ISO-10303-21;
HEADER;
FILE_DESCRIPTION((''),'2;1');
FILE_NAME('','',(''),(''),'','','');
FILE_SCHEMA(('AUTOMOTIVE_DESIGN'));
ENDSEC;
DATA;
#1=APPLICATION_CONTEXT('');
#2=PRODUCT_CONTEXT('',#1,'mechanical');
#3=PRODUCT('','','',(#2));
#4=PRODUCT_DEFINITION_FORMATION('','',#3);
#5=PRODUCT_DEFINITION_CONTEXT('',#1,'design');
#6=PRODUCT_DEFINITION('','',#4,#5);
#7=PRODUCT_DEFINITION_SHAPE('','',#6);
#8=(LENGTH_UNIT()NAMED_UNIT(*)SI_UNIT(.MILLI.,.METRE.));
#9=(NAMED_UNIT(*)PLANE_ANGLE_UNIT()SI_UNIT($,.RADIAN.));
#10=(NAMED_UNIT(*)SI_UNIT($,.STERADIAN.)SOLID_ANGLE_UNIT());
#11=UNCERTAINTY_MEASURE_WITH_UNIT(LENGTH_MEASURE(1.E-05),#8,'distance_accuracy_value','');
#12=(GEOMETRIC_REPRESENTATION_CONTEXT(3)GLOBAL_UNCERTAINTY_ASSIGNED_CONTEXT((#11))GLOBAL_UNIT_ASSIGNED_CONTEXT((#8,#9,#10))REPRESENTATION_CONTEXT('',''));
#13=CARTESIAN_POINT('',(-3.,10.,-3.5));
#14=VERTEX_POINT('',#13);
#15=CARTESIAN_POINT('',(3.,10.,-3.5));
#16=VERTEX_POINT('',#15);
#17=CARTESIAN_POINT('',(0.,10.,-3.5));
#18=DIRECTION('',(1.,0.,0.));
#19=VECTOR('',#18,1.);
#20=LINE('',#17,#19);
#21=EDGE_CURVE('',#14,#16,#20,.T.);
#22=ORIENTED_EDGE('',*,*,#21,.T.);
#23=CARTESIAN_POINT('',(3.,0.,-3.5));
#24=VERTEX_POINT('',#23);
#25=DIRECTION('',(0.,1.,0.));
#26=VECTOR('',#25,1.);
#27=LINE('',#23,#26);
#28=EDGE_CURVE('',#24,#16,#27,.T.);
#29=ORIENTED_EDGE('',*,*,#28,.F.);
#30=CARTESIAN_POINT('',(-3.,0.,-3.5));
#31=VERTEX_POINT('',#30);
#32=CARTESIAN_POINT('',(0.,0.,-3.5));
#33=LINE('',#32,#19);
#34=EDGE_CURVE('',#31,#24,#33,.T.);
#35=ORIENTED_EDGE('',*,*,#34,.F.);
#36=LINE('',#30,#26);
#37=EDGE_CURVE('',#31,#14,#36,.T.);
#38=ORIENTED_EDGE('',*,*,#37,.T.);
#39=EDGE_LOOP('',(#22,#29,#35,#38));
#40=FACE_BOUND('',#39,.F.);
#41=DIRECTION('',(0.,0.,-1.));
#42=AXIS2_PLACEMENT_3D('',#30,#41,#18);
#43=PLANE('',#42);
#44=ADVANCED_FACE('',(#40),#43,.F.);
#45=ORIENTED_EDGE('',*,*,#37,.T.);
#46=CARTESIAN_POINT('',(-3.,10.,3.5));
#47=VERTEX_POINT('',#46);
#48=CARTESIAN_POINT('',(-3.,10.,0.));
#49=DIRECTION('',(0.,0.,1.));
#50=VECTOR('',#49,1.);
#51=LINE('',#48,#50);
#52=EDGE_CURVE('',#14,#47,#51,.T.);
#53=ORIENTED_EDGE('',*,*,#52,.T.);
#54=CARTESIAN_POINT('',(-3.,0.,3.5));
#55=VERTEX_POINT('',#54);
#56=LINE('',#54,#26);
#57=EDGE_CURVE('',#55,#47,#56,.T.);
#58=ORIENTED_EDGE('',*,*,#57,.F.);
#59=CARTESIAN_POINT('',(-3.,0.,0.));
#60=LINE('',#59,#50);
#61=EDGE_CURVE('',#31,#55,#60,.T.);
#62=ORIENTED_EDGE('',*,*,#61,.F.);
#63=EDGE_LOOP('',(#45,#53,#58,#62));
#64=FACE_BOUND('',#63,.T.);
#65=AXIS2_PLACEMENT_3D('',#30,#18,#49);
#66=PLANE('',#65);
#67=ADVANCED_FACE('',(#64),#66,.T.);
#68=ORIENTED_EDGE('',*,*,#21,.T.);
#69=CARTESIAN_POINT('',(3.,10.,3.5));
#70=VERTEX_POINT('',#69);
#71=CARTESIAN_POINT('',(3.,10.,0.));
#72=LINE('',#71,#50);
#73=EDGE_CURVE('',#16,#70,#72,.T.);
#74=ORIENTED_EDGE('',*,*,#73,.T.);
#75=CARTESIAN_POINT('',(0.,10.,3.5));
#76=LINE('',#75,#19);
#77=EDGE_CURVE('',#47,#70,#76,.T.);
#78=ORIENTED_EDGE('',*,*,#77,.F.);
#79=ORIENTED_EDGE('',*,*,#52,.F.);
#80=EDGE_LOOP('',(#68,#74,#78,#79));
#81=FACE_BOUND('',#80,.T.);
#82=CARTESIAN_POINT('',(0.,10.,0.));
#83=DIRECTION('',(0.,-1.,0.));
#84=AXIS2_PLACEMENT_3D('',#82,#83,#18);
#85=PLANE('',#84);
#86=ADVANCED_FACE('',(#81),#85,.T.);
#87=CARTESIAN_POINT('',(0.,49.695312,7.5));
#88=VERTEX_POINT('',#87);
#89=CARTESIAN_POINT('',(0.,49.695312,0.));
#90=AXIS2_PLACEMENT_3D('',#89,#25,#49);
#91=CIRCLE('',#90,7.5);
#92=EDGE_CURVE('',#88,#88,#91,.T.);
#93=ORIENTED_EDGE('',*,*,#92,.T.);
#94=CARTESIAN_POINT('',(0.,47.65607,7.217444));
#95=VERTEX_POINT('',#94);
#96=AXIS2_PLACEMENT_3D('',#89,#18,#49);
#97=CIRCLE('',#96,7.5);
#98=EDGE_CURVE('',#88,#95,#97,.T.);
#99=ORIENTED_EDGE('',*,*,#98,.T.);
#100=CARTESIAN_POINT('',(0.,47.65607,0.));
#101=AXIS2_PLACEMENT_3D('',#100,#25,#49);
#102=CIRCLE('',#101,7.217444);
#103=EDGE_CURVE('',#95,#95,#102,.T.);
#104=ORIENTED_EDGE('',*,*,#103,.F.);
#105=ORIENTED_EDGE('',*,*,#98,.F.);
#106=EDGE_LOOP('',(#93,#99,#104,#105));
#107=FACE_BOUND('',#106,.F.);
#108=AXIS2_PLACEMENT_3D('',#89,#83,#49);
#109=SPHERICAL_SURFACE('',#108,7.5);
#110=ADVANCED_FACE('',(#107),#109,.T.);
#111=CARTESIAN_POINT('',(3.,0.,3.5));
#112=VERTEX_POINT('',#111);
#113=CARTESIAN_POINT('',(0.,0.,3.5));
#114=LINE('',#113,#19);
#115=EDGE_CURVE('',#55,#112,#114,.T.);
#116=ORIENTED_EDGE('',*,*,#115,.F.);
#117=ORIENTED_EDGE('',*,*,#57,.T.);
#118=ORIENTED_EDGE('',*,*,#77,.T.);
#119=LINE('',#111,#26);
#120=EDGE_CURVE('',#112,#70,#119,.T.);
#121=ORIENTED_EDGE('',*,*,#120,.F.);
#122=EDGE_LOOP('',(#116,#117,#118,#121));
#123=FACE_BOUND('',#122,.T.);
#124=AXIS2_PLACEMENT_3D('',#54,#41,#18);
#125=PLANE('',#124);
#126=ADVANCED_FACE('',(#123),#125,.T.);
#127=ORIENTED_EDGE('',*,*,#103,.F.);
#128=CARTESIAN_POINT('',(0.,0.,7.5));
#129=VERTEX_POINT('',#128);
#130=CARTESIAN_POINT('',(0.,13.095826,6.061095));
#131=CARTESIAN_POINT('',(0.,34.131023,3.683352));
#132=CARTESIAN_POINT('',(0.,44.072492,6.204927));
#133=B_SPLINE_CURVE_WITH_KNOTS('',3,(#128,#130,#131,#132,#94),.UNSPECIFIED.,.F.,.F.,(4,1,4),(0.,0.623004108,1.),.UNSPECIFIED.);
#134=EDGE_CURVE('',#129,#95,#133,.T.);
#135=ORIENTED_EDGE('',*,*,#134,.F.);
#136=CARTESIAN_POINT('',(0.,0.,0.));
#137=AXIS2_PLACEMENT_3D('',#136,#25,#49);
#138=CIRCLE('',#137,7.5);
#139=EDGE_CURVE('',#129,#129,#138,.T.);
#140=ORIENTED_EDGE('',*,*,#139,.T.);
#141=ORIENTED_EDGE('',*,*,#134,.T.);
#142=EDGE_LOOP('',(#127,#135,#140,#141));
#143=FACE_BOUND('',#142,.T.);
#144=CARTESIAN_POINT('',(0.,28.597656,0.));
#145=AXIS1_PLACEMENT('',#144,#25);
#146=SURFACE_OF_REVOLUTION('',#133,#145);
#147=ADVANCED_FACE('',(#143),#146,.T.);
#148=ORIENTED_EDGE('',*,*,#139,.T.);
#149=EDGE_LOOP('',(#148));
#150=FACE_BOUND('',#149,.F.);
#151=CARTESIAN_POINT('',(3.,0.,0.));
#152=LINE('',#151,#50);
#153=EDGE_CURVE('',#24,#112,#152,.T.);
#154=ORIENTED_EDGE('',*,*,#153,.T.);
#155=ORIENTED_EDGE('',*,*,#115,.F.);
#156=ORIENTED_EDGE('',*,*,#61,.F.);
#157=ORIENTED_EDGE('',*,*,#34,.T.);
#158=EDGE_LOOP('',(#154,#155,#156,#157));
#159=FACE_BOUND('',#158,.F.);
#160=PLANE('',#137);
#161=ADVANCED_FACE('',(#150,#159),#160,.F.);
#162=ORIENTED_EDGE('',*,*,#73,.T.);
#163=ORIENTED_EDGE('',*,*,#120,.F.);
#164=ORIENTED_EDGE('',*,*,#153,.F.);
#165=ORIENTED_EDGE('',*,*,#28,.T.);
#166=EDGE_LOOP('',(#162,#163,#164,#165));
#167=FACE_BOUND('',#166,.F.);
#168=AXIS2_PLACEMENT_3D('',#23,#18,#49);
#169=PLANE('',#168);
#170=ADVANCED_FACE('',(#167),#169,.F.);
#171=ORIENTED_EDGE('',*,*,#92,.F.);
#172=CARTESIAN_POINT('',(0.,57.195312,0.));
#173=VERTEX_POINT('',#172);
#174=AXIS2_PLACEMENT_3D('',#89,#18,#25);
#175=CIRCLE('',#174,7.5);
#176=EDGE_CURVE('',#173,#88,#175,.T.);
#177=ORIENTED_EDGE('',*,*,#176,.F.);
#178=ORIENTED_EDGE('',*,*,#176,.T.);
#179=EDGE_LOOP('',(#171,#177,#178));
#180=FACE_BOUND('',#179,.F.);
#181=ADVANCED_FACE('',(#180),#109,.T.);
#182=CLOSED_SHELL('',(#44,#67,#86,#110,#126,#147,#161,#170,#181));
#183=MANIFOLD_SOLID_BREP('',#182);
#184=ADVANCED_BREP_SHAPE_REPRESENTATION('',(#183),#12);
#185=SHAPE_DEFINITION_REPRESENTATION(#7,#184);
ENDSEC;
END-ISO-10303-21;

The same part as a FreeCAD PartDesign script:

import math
import FreeCAD as App
import Part
import Sketcher

V = App.Vector
Q = App.Units.Quantity


def add_polygon(sketch, points):
    """Adds a closed chain of lines whose ends are joined by coincident constraints."""
    first, n = sketch.GeometryCount, len(points)
    for a, b in zip(points, points[1:] + points[:1]):
        sketch.addGeometry(Part.LineSegment(App.Vector(*a, 0), App.Vector(*b, 0)), False)
    for i in range(n):
        sketch.addConstraint(Sketcher.Constraint("Coincident", first + i, 2, first + (i + 1) % n, 1))

doc = App.newDocument("Part")
body = doc.addObject("PartDesign::Body", "Body")

# Sketch on YZ plane
sketch1 = body.newObject("Sketcher::SketchObject", "Sketch")
sketch1.AttachmentSupport = (doc.getObject("YZ_Plane"), [""])
sketch1.MapMode = "FlatFace"
sketch1.addGeometry([
    Part.LineSegment(V(0, 7.5, 0), V(0, 0, 0)),  # 0
    Part.LineSegment(V(0, 0, 0), V(57.195312, 0, 0)),  # 1
    Part.ArcOfCircle(Part.Circle(V(49.695312, 0, 0), V(0, 0, 1), 7.5), math.radians(0), math.radians(90)),  # 2
    Part.ArcOfCircle(Part.Circle(V(49.695312, 0, 0), V(0, 0, 1), 7.5), math.radians(90), math.radians(105.777295)),  # 3
    Part.BSplineCurve([V(0, 7.5, 0), V(13.095826, 6.061095, 0), V(34.131023, 3.683352, 0), V(44.072492, 6.204927, 0), V(47.65607, 7.217444, 0)], [4, 1, 4], [0, 0.623004108, 1], False, 3, [1, 1, 1, 1, 1], False),  # 4
], False)
sketch1.addConstraint([
    Sketcher.Constraint("Block", 4),
    Sketcher.Constraint("Coincident", 0, 2, 1, 1),
    Sketcher.Constraint("Coincident", 1, 2, 2, 1),
    Sketcher.Constraint("Tangent", 2, 2, 3, 1),
    Sketcher.Constraint("Coincident", 3, 2, 4, 2),
    Sketcher.Constraint("Coincident", 4, 1, 0, 1),
    Sketcher.Constraint("Vertical", 0),
    Sketcher.Constraint("Horizontal", 1),
    Sketcher.Constraint("Equal", 2, 3),
    Sketcher.Constraint("PointOnObject", 2, 3, -1),
    Sketcher.Constraint("PointOnObject", 1, 2, -1),
    Sketcher.Constraint("Vertical", 3, 3, 2, 2),
    Sketcher.Constraint("Radius", 2, Q("7.5 mm")),
])
revolution = body.newObject("PartDesign::Revolution", "Revolution")
revolution.Profile = sketch1
revolution.ReferenceAxis = (sketch1, ["H_Axis"])
revolution.Angle = 360

# Sketch on XZ plane
sketch2 = body.newObject("Sketcher::SketchObject", "Sketch001")
sketch2.AttachmentSupport = (doc.getObject("XZ_Plane"), [""])
sketch2.MapMode = "FlatFace"
add_polygon(sketch2, [(-3, 3.5), (-3, -3.5), (3, -3.5), (3, 3.5)])  # lines 0-3
sketch2.addConstraint([
    Sketcher.Constraint("Vertical", 0),
    Sketcher.Constraint("Horizontal", 1),
    Sketcher.Constraint("Vertical", 2),
    Sketcher.Constraint("Horizontal", 3),
    Sketcher.Constraint("Symmetric", 0, 2, 2, 2, -1, 1),
    Sketcher.Constraint("DistanceX", 1, 1, 1, 2, Q("6 mm")),
    Sketcher.Constraint("DistanceY", 0, 2, 0, 1, Q("7 mm")),
])
pocket1 = body.newObject("PartDesign::Pocket", "Pocket")
pocket1.Profile = sketch2
pocket1.Length = 10

doc.recompute()
